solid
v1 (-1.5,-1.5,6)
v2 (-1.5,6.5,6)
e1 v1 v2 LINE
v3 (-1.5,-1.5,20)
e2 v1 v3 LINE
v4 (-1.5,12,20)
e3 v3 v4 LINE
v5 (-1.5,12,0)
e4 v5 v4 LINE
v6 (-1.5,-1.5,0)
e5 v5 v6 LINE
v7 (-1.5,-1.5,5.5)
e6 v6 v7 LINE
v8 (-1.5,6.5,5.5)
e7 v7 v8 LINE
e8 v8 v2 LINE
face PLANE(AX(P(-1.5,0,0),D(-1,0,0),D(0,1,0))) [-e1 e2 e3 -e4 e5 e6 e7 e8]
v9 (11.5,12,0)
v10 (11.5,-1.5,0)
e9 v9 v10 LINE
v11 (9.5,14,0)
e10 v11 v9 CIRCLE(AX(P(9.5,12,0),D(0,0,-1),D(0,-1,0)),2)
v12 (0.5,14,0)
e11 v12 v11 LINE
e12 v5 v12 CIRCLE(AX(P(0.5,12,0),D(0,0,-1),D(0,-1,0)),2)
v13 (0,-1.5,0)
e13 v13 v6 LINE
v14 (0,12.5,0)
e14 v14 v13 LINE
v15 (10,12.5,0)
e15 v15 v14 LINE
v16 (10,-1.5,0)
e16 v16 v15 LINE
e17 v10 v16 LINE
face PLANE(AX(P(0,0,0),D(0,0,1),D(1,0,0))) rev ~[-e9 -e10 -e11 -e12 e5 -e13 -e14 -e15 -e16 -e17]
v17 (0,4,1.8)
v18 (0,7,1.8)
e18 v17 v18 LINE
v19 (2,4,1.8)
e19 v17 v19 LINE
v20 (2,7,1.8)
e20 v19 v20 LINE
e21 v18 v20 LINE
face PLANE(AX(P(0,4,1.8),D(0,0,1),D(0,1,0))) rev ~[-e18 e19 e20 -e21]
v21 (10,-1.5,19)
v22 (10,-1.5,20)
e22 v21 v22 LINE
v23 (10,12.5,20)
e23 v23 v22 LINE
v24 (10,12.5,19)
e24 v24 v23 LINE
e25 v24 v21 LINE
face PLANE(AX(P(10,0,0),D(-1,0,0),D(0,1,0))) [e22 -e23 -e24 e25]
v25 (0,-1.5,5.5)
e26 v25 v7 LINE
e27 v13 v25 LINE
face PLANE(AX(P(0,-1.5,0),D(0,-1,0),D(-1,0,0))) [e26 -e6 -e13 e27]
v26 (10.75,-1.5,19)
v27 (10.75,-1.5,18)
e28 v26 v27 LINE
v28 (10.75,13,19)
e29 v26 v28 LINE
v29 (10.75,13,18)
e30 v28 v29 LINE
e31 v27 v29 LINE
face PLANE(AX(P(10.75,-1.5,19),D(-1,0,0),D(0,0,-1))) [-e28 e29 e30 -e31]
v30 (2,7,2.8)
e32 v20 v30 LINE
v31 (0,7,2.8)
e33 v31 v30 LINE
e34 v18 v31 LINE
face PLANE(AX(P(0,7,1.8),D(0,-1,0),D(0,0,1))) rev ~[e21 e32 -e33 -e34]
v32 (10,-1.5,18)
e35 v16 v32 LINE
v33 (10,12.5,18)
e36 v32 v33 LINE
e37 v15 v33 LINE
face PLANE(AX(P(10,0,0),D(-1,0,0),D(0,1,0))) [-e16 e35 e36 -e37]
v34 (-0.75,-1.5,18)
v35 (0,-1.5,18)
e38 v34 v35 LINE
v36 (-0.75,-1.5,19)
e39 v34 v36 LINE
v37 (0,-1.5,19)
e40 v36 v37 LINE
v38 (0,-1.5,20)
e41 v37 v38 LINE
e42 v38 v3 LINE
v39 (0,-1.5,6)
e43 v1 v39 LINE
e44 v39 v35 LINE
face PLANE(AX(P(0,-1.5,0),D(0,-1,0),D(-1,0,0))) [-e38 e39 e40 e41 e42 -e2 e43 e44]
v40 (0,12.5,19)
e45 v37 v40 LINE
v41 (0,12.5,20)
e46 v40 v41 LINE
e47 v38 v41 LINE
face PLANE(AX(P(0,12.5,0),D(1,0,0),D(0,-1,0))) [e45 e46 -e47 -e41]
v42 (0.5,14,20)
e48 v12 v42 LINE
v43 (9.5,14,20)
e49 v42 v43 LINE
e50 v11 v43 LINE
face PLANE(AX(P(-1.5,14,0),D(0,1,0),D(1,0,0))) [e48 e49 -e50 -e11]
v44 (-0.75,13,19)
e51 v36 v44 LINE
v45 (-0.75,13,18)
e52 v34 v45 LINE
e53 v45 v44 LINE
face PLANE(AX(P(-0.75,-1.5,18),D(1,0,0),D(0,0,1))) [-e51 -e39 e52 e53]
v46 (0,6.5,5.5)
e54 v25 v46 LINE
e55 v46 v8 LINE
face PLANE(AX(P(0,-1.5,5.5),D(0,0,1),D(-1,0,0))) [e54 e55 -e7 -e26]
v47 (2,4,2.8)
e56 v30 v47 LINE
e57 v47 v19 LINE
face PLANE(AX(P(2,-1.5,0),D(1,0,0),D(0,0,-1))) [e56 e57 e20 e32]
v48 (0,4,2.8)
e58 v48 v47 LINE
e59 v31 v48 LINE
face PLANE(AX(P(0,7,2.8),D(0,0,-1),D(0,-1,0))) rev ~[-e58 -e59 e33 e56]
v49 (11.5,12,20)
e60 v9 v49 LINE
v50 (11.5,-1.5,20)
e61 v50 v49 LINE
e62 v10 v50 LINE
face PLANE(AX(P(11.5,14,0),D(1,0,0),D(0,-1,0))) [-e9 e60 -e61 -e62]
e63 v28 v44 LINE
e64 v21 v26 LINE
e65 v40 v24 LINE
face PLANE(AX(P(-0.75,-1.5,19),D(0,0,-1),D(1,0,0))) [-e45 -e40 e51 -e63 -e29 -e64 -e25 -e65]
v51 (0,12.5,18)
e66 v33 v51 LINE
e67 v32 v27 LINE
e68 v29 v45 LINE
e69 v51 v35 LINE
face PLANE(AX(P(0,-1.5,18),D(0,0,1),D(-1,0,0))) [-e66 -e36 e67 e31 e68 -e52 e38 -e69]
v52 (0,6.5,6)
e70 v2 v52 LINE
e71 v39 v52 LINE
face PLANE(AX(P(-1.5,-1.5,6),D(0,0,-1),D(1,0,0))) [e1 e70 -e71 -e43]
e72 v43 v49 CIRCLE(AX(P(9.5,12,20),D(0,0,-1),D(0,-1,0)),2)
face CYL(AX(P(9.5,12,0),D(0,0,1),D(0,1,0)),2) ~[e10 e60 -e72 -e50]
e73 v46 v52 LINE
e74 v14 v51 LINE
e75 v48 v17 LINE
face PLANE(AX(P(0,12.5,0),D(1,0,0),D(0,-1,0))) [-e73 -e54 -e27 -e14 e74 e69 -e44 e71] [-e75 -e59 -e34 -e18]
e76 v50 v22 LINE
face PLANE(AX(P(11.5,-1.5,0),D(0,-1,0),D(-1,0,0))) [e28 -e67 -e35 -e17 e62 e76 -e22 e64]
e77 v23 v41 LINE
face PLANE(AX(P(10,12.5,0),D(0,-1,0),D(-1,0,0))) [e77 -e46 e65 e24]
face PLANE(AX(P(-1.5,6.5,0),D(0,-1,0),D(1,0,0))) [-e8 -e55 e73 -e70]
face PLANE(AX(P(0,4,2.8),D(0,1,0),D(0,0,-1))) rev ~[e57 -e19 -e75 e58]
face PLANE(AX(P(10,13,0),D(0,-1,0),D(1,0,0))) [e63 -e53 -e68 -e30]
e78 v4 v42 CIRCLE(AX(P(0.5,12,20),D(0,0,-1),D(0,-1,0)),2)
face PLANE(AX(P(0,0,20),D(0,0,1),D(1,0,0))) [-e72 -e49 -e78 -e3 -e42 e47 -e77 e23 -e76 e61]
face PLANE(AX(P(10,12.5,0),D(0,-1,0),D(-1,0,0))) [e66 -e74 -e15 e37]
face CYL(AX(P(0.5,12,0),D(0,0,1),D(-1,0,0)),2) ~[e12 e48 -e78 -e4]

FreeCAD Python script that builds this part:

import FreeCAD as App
import Part
import Sketcher
Q = App.Units.Quantity


def edges_at(feature, points):
    """Names of the edges that pass closest to the given points."""
    edges = feature.Shape.Edges
    near = lambda p: min(range(len(edges)), key=lambda i: edges[i].distToShape(Part.Vertex(*p))[0])
    return sorted({f"Edge{near(p) + 1}" for p in points})

doc = App.newDocument("Part")
body = doc.addObject("PartDesign::Body", "Body")

# Sketch on XY plane
sketch1 = body.newObject("Sketcher::SketchObject", "Sketch")
sketch1.AttachmentSupport = (doc.getObject("XY_Plane"), [""])
sketch1.MapMode = "FlatFace"
sketch1.addGeometry([
    Part.LineSegment(App.Vector(-1.5, 14, 0), App.Vector(-1.5, -1.5, 0)),  # 0
    Part.LineSegment(App.Vector(-1.5, -1.5, 0), App.Vector(0, -1.5, 0)),  # 1
    Part.LineSegment(App.Vector(0, -1.5, 0), App.Vector(0, 12.5, 0)),  # 2
    Part.LineSegment(App.Vector(0, 12.5, 0), App.Vector(10, 12.5, 0)),  # 3
    Part.LineSegment(App.Vector(10, 12.5, 0), App.Vector(10, -1.5, 0)),  # 4
    Part.LineSegment(App.Vector(10, -1.5, 0), App.Vector(11.5, -1.5, 0)),  # 5
    Part.LineSegment(App.Vector(11.5, -1.5, 0), App.Vector(11.5, 14, 0)),  # 6
    Part.LineSegment(App.Vector(11.5, 14, 0), App.Vector(-1.5, 14, 0)),  # 7
], False)
sketch1.addConstraint([
    Sketcher.Constraint("Coincident", 0, 2, 1, 1),
    Sketcher.Constraint("Coincident", 1, 2, 2, 1),
    Sketcher.Constraint("Coincident", 2, 2, 3, 1),
    Sketcher.Constraint("Coincident", 3, 2, 4, 1),
    Sketcher.Constraint("Coincident", 4, 2, 5, 1),
    Sketcher.Constraint("Coincident", 5, 2, 6, 1),
    Sketcher.Constraint("Coincident", 6, 2, 7, 1),
    Sketcher.Constraint("Coincident", 7, 2, 0, 1),
    Sketcher.Constraint("Vertical", 0),
    Sketcher.Constraint("Horizontal", 1),
    Sketcher.Constraint("Vertical", 2),
    Sketcher.Constraint("Horizontal", 3),
    Sketcher.Constraint("Vertical", 4),
    Sketcher.Constraint("Horizontal", 5),
    Sketcher.Constraint("Vertical", 6),
    Sketcher.Constraint("Horizontal", 7),
    Sketcher.Constraint("PointOnObject", 1, 2, -2),
    Sketcher.Constraint("Horizontal", 1, 2, 4, 2),
    Sketcher.Constraint("Equal", 1, 5),
    Sketcher.Constraint("DistanceX", 3, 1, 3, 2, Q("10 mm")),
    Sketcher.Constraint("DistanceX", 1, 1, 1, 2, Q("1.5 mm")),
    Sketcher.Constraint("DistanceY", 0, 2, -1, 1, Q("1.5 mm")),
    Sketcher.Constraint("DistanceY", -1, 1, 2, 2, Q("12.5 mm")),
    Sketcher.Constraint("DistanceY", 3, 2, 6, 2, Q("1.5 mm")),
])
pad1 = body.newObject("PartDesign::Pad", "Pad")
pad1.Profile = sketch1
pad1.Length = 20

# Sketch on XZ plane
sketch2 = body.newObject("Sketcher::SketchObject", "Sketch001")
sketch2.AttachmentSupport = (doc.getObject("XZ_Plane"), [""])
sketch2.MapMode = "FlatFace"
sketch2.AttachmentOffset = App.Placement(App.Vector(0, 0, 1.5), App.Rotation())
sketch2.addGeometry([
    Part.LineSegment(App.Vector(-1.5, 6, 0), App.Vector(-1.5, 5.5, 0)),
    Part.LineSegment(App.Vector(-1.5, 5.5, 0), App.Vector(0, 5.5, 0)),
    Part.LineSegment(App.Vector(0, 5.5, 0), App.Vector(0, 6, 0)),
    Part.LineSegment(App.Vector(0, 6, 0), App.Vector(-1.5, 6, 0)),
], False)
sketch2.addConstraint([
    Sketcher.Constraint("Coincident", 0, 2, 1, 1),
    Sketcher.Constraint("Coincident", 1, 2, 2, 1),
    Sketcher.Constraint("Coincident", 2, 2, 3, 1),
    Sketcher.Constraint("Coincident", 3, 2, 0, 1),
    Sketcher.Constraint("Vertical", 0),
    Sketcher.Constraint("Horizontal", 1),
    Sketcher.Constraint("Vertical", 2),
    Sketcher.Constraint("Horizontal", 3),
    Sketcher.Constraint("PointOnObject", 1, 2, -2),
    Sketcher.Constraint("DistanceY", 0, 2, 0, 1, Q("0.5 mm")),
    Sketcher.Constraint("DistanceY", -1, 1, 0, 2, Q("5.5 mm")),
    Sketcher.Constraint("DistanceX", 1, 1, 1, 2, Q("1.5 mm")),
])
pocket1 = body.newObject("PartDesign::Pocket", "Pocket")
pocket1.Profile = sketch2
pocket1.Length = 8
doc.recompute()

fillet = body.newObject("PartDesign::Fillet", "Fillet")
fillet.Base = (pocket1, edges_at(pocket1, [(-1.5, 14, 10), (11.5, 14, 10)]))
fillet.Radius = 2

# Sketch on XZ plane
sketch3 = body.newObject("Sketcher::SketchObject", "Sketch002")
sketch3.AttachmentSupport = (doc.getObject("XZ_Plane"), [""])
sketch3.MapMode = "FlatFace"
sketch3.AttachmentOffset = App.Placement(App.Vector(0, 0, 1.5), App.Rotation())
sketch3.addGeometry([
    Part.LineSegment(App.Vector(-0.75, 19, 0), App.Vector(-0.75, 18, 0)),
    Part.LineSegment(App.Vector(-0.75, 18, 0), App.Vector(10.75, 18, 0)),
    Part.LineSegment(App.Vector(10.75, 18, 0), App.Vector(10.75, 19, 0)),
    Part.LineSegment(App.Vector(10.75, 19, 0), App.Vector(-0.75, 19, 0)),
], False)
sketch3.addConstraint([
    Sketcher.Constraint("Coincident", 0, 2, 1, 1),
    Sketcher.Constraint("Coincident", 1, 2, 2, 1),
    Sketcher.Constraint("Coincident", 2, 2, 3, 1),
    Sketcher.Constraint("Coincident", 3, 2, 0, 1),
    Sketcher.Constraint("Vertical", 0),
    Sketcher.Constraint("Horizontal", 1),
    Sketcher.Constraint("Vertical", 2),
    Sketcher.Constraint("Horizontal", 3),
    Sketcher.Constraint("DistanceY", 0, 2, 0, 1, Q("1 mm")),
    Sketcher.Constraint("DistanceX", 1, 1, 1, 2, Q("11.5 mm")),
    Sketcher.Constraint("DistanceY", -1, 1, 0, 2, Q("18 mm")),
    Sketcher.Constraint("DistanceX", 0, 2, -1, 1, Q("0.75 mm")),
])
pocket2 = body.newObject("PartDesign::Pocket", "Pocket001")
pocket2.Profile = sketch3
pocket2.Length = 14.5

# Sketch on YZ plane
sketch4 = body.newObject("Sketcher::SketchObject", "Sketch003")
sketch4.AttachmentSupport = (doc.getObject("YZ_Plane"), [""])
sketch4.MapMode = "FlatFace"
sketch4.addGeometry([
    Part.LineSegment(App.Vector(7, 2.8, 0), App.Vector(4, 2.8, 0)),
    Part.LineSegment(App.Vector(4, 2.8, 0), App.Vector(4, 1.8, 0)),
    Part.LineSegment(App.Vector(4, 1.8, 0), App.Vector(7, 1.8, 0)),
    Part.LineSegment(App.Vector(7, 1.8, 0), App.Vector(7, 2.8, 0)),
], False)
sketch4.addConstraint([
    Sketcher.Constraint("Coincident", 0, 2, 1, 1),
    Sketcher.Constraint("Coincident", 1, 2, 2, 1),
    Sketcher.Constraint("Coincident", 2, 2, 3, 1),
    Sketcher.Constraint("Coincident", 3, 2, 0, 1),
    Sketcher.Constraint("Horizontal", 0),
    Sketcher.Constraint("Vertical", 1),
    Sketcher.Constraint("Horizontal", 2),
    Sketcher.Constraint("Vertical", 3),
    Sketcher.Constraint("DistanceX", 0, 2, 0, 1, Q("3 mm")),
    Sketcher.Constraint("DistanceY", 1, 2, 1, 1, Q("1 mm")),
    Sketcher.Constraint("DistanceX", -1, 1, 2, 2, Q("7 mm")),
    Sketcher.Constraint("DistanceY", -1, 1, 0, 2, Q("2.8 mm")),
])
pad2 = body.newObject("PartDesign::Pad", "Pad001")
pad2.Profile = sketch4
pad2.Length = 2

doc.recompute()
